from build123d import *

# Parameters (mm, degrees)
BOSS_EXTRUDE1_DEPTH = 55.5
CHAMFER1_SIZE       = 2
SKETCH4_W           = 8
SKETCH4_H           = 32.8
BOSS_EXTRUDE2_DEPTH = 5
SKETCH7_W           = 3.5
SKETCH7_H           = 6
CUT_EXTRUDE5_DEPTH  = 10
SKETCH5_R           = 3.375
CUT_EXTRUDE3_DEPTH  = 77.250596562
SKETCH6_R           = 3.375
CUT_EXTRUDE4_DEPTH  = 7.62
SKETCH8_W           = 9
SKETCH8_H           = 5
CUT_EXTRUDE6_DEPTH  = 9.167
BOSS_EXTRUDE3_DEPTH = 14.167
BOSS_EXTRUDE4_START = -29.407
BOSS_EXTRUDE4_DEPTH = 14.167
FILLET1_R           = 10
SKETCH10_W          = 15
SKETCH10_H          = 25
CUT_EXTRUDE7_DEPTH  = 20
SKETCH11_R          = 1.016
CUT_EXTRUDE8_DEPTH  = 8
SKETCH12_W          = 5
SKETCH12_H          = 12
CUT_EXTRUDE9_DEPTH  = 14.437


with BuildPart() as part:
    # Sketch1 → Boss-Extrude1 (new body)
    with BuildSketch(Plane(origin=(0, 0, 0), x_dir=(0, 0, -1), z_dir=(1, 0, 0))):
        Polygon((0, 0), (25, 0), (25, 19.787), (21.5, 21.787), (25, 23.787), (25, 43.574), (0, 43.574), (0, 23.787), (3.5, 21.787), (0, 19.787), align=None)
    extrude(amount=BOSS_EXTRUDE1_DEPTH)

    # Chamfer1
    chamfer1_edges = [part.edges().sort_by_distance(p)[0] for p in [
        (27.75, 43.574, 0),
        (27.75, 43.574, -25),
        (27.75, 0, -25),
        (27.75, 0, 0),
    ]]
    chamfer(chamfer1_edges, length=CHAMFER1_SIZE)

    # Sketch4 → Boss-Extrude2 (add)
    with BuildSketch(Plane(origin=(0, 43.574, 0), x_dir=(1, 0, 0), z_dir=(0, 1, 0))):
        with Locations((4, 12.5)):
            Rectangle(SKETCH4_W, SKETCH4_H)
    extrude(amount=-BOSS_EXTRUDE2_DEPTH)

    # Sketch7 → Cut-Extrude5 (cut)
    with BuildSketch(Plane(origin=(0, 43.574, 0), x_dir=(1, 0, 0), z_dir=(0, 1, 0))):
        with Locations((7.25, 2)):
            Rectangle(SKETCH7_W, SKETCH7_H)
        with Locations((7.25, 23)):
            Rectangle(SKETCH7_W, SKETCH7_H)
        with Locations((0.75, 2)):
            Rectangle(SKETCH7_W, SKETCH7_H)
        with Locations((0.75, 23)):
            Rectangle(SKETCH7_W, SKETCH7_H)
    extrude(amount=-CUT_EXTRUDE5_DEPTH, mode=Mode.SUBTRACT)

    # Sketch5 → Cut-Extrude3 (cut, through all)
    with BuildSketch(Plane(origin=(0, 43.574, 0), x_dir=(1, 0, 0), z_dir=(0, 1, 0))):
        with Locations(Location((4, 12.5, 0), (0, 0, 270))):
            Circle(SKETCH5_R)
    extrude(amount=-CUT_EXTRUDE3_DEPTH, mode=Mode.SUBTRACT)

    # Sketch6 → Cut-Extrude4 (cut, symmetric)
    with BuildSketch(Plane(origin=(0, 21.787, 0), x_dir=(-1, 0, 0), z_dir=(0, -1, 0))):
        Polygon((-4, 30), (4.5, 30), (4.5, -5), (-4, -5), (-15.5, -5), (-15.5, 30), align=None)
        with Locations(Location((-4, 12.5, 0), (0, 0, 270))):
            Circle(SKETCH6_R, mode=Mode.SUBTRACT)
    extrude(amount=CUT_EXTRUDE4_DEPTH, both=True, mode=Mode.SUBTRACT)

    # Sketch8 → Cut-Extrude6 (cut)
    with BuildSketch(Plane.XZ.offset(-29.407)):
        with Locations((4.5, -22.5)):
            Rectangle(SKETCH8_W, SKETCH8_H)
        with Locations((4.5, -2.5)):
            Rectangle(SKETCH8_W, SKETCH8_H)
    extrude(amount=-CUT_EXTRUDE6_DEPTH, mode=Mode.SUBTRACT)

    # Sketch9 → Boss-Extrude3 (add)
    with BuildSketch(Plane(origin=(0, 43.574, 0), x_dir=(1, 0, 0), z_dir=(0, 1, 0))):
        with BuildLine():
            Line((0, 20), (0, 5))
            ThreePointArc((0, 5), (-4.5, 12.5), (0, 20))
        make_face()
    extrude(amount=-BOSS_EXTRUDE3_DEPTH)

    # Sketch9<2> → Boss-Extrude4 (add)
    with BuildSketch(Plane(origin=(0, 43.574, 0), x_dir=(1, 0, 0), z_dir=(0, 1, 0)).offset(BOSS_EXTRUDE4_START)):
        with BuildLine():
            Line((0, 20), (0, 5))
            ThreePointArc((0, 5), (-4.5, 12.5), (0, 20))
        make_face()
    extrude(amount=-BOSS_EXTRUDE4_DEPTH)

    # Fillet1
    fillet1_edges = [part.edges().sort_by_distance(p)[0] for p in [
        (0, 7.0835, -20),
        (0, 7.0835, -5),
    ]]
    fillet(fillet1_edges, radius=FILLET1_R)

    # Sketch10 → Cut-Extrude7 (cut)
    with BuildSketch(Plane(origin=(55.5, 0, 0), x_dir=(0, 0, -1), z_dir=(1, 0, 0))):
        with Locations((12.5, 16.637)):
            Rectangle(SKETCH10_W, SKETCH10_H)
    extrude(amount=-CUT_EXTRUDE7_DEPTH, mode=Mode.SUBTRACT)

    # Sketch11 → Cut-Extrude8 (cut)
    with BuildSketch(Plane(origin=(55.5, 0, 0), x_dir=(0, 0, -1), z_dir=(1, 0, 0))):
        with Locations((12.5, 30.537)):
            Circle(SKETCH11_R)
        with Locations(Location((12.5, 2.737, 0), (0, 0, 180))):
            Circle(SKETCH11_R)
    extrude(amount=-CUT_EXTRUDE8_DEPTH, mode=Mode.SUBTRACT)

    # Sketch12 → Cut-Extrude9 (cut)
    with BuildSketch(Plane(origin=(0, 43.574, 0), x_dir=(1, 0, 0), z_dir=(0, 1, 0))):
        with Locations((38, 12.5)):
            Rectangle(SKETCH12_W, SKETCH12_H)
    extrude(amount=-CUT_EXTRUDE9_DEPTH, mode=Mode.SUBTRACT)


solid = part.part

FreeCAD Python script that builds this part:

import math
import FreeCAD as App
import Part
import Sketcher
from FreeCAD import Vector
Q = App.Units.Quantity


def edges_at(feature, points):
    """Names of the edges that pass closest to the given points."""
    edges = feature.Shape.Edges
    near = lambda p: min(range(len(edges)), key=lambda i: edges[i].distToShape(Part.Vertex(*p))[0])
    return sorted({f"Edge{near(p) + 1}" for p in points})


def add_polygon(sketch, points):
    """Adds a closed chain of lines whose ends are joined by coincident constraints."""
    first, n = sketch.GeometryCount, len(points)
    for a, b in zip(points, points[1:] + points[:1]):
        sketch.addGeometry(Part.LineSegment(App.Vector(*a, 0), App.Vector(*b, 0)), False)
    for i in range(n):
        sketch.addConstraint(Sketcher.Constraint("Coincident", first + i, 2, first + (i + 1) % n, 1))

doc = App.newDocument("Part")
body = doc.addObject("PartDesign::Body", "Body")

# Sketch on YZ plane
sketch1 = doc.addObject("Sketcher::SketchObject", "Sketch")
body.addObject(sketch1)
sketch1.AttachmentSupport = (doc.YZ_Plane, [""])
sketch1.MapMode = "FlatFace"
add_polygon(sketch1, [(0, 0), (0, -25), (19.787, -25), (21.787, -21.5), (23.787, -25), (43.574, -25), (43.574, 0), (23.787, 0), (21.787, -3.5), (19.787, 0)])  # lines 0-9
sketch1.addConstraint([
    Sketcher.Constraint("Vertical", 0),
    Sketcher.Constraint("Horizontal", 1),
    Sketcher.Constraint("Horizontal", 4),
    Sketcher.Constraint("Vertical", 5),
    Sketcher.Constraint("Horizontal", 6),
    Sketcher.Constraint("Horizontal", 9),
    Sketcher.Constraint("Coincident", 9, 2, -1, 1),
    Sketcher.Constraint("PointOnObject", 5, 2, -1),
    Sketcher.Constraint("Parallel", 2, 7),
    Sketcher.Constraint("Parallel", 3, 8),
    Sketcher.Constraint("Horizontal", 1, 2, 3, 2),
    Sketcher.Constraint("Vertical", 3, 2, 6, 2),
    Sketcher.Constraint("Vertical", 2, 2, 7, 2),
    Sketcher.Constraint("Vertical", 1, 2, 8, 2),
    Sketcher.Constraint("Equal", 1, 4),
    Sketcher.Constraint("DistanceY", 0, 2, 0, 1, Q("25 mm")),
    Sketcher.Constraint("DistanceX", 1, 2, 2, 2, Q("2 mm")),
    Sketcher.Constraint("DistanceY", 2, 2, 7, 2, Q("18 mm")),
    Sketcher.Constraint("DistanceX", 1, 1, 1, 2, Q("19.787 mm")),
])
pad1 = doc.addObject("PartDesign::Pad", "Pad")
body.addObject(pad1)
pad1.Profile = sketch1
pad1.Length = 55.5
doc.recompute()

chamfer = doc.addObject("PartDesign::Chamfer", "Chamfer")
body.addObject(chamfer)
chamfer.Base = (pad1, edges_at(pad1, [
    (27.75, 43.574, 0),
    (27.75, 43.574, -25),
    (27.75, 0, -25),
    (27.75, 0, 0),
]))
chamfer.Size = 2

# Sketch on XZ plane
sketch2 = doc.addObject("Sketcher::SketchObject", "Sketch001")
body.addObject(sketch2)
sketch2.AttachmentSupport = (doc.XZ_Plane, [""])
sketch2.MapMode = "FlatFace"
sketch2.AttachmentOffset = App.Placement(Vector(0, 0, -43.574), App.Rotation())
add_polygon(sketch2, [(0, -28.9), (0, 3.9), (8, 3.9), (8, -28.9)])  # lines 0-3
sketch2.addConstraint([
    Sketcher.Constraint("Vertical", 0),
    Sketcher.Constraint("Horizontal", 1),
    Sketcher.Constraint("Vertical", 2),
    Sketcher.Constraint("Horizontal", 3),
    Sketcher.Constraint("PointOnObject", 0, 2, -2),
    Sketcher.Constraint("DistanceX", 1, 1, 1, 2, Q("8 mm")),
    Sketcher.Constraint("DistanceY", 0, 1, 0, 2, Q("32.8 mm")),
    Sketcher.Constraint("DistanceY", -1, 1, 0, 2, Q("3.9 mm")),
])
pad2 = doc.addObject("PartDesign::Pad", "Pad001")
body.addObject(pad2)
pad2.Profile = sketch2
pad2.Length = 5

# Sketch on XZ plane
sketch3 = doc.addObject("Sketcher::SketchObject", "Sketch002")
body.addObject(sketch3)
sketch3.AttachmentSupport = (doc.XZ_Plane, [""])
sketch3.MapMode = "FlatFace"
sketch3.AttachmentOffset = App.Placement(Vector(0, 0, -43.574), App.Rotation())
add_polygon(sketch3, [(5.5, -5), (5.5, 1), (9, 1), (9, -5)])  # lines 0-3
add_polygon(sketch3, [(5.5, -26), (5.5, -20), (9, -20), (9, -26)])  # lines 4-7
add_polygon(sketch3, [(-1, -5), (-1, 1), (2.5, 1), (2.5, -5)])  # lines 8-11
add_polygon(sketch3, [(-1, -26), (-1, -20), (2.5, -20), (2.5, -26)])  # lines 12-15
sketch3.addConstraint([
    Sketcher.Constraint("Vertical", 0),
    Sketcher.Constraint("Horizontal", 1),
    Sketcher.Constraint("Vertical", 2),
    Sketcher.Constraint("Horizontal", 3),
    Sketcher.Constraint("Vertical", 4),
    Sketcher.Constraint("Horizontal", 5),
    Sketcher.Constraint("Vertical", 6),
    Sketcher.Constraint("Horizontal", 7),
    Sketcher.Constraint("Vertical", 8),
    Sketcher.Constraint("Horizontal", 9),
    Sketcher.Constraint("Vertical", 10),
    Sketcher.Constraint("Horizontal", 11),
    Sketcher.Constraint("Vertical", 12),
    Sketcher.Constraint("Horizontal", 13),
    Sketcher.Constraint("Vertical", 14),
    Sketcher.Constraint("Horizontal", 15),
    Sketcher.Constraint("Horizontal", 1, 2, 8, 2),
    Sketcher.Constraint("Horizontal", 3, 2, 10, 2),
    Sketcher.Constraint("Horizontal", 5, 2, 12, 2),
    Sketcher.Constraint("Horizontal", 7, 2, 14, 2),
    Sketcher.Constraint("Vertical", 3, 2, 4, 2),
    Sketcher.Constraint("Vertical", 2, 2, 5, 2),
    Sketcher.Constraint("Vertical", 11, 2, 12, 2),
    Sketcher.Constraint("Vertical", 10, 2, 13, 2),
    Sketcher.Constraint("Equal", 7, 9),
    Sketcher.Constraint("Equal", 2, 4),
    Sketcher.Constraint("DistanceY", 0, 1, 0, 2, Q("6 mm")),
    Sketcher.Constraint("DistanceX", 1, 1, 1, 2, Q("3.5 mm")),
    Sketcher.Constraint("DistanceY", -1, 1, 0, 2, Q("1 mm")),
    Sketcher.Constraint("DistanceX", -1, 1, 1, 2, Q("9 mm")),
    Sketcher.Constraint("DistanceY", 4, 2, -1, 1, Q("20 mm")),
    Sketcher.Constraint("DistanceX", 8, 2, -1, 1, Q("1 mm")),
])
pocket1 = doc.addObject("PartDesign::Pocket", "Pocket")
body.addObject(pocket1)
pocket1.Profile = sketch3
pocket1.Length = 10
pocket1.Reversed = True

# Sketch on XZ plane
sketch4 = doc.addObject("Sketcher::SketchObject", "Sketch003")
body.addObject(sketch4)
sketch4.AttachmentSupport = (doc.XZ_Plane, [""])
sketch4.MapMode = "FlatFace"
sketch4.AttachmentOffset = App.Placement(Vector(0, 0, -43.574), App.Rotation())
sketch4.addGeometry(Part.Circle(Vector(4, -12.5, 0), Vector(0, 0, 1), 3.375), False)
sketch4.addConstraint([
    Sketcher.Constraint("Diameter", 0, Q("6.75 mm")),
    Sketcher.Constraint("DistanceX", -1, 1, 0, 3, Q("4 mm")),
    Sketcher.Constraint("DistanceY", 0, 3, -1, 1, Q("12.5 mm")),
])
pocket2 = doc.addObject("PartDesign::Pocket", "Pocket001")
body.addObject(pocket2)
pocket2.Profile = sketch4
pocket2.Type = "ThroughAll"
pocket2.Reversed = True

# Sketch on XZ plane
sketch5 = doc.addObject("Sketcher::SketchObject", "Sketch004")
body.addObject(sketch5)
sketch5.AttachmentSupport = (doc.XZ_Plane, [""])
sketch5.MapMode = "FlatFace"
sketch5.AttachmentOffset = App.Placement(Vector(0, 0, -21.787), App.Rotation())
add_polygon(sketch5, [(-4.5, -30), (15.5, -30), (15.5, 5), (-4.5, 5)])  # lines 0-3
sketch5.addGeometry(Part.Circle(Vector(4, -12.5, 0), Vector(0, 0, 1), 3.375), False)  # 4
sketch5.addConstraint([
    Sketcher.Constraint("Horizontal", 0),
    Sketcher.Constraint("Vertical", 1),
    Sketcher.Constraint("Horizontal", 2),
    Sketcher.Constraint("Vertical", 3),
    Sketcher.Constraint("Diameter", 4, Q("6.75 mm")),
    Sketcher.Constraint("DistanceX", 0, 1, 0, 2, Q("20 mm")),
    Sketcher.Constraint("DistanceY", 1, 1, 1, 2, Q("35 mm")),
    Sketcher.Constraint("DistanceX", -1, 1, 4, 3, Q("4 mm")),
    Sketcher.Constraint("DistanceY", 0, 2, -1, 1, Q("30 mm")),
    Sketcher.Constraint("DistanceY", 4, 3, -1, 1, Q("12.5 mm")),
    Sketcher.Constraint("DistanceX", -1, 1, 0, 2, Q("15.5 mm")),
])
pocket3 = doc.addObject("PartDesign::Pocket", "Pocket002")
body.addObject(pocket3)
pocket3.Profile = sketch5
pocket3.Length = 15.24
pocket3.Midplane = True

# Sketch on XZ plane
sketch6 = doc.addObject("Sketcher::SketchObject", "Sketch005")
body.addObject(sketch6)
sketch6.AttachmentSupport = (doc.XZ_Plane, [""])
sketch6.MapMode = "FlatFace"
sketch6.AttachmentOffset = App.Placement(Vector(0, 0, -29.407), App.Rotation())
add_polygon(sketch6, [(0, -20), (0, -25), (9, -25), (9, -20)])  # lines 0-3
add_polygon(sketch6, [(0, 0), (0, -5), (9, -5), (9, 0)])  # lines 4-7
sketch6.addConstraint([
    Sketcher.Constraint("Vertical", 0),
    Sketcher.Constraint("Horizontal", 1),
    Sketcher.Constraint("Vertical", 2),
    Sketcher.Constraint("Horizontal", 3),
    Sketcher.Constraint("Vertical", 4),
    Sketcher.Constraint("Horizontal", 5),
    Sketcher.Constraint("Vertical", 6),
    Sketcher.Constraint("Horizontal", 7),
    Sketcher.Constraint("Coincident", 7, 2, -1, 1),
    Sketcher.Constraint("PointOnObject", 0, 2, -2),
    Sketcher.Constraint("Vertical", 2, 2, 5, 2),
    Sketcher.Constraint("Equal", 2, 4),
    Sketcher.Constraint("DistanceX", 1, 1, 1, 2, Q("9 mm")),
    Sketcher.Constraint("DistanceY", 0, 2, 0, 1, Q("5 mm")),
    Sketcher.Constraint("DistanceY", 0, 2, -1, 1, Q("25 mm")),
])
pocket4 = doc.addObject("PartDesign::Pocket", "Pocket003")
body.addObject(pocket4)
pocket4.Profile = sketch6
pocket4.Length = 9.167

# Sketch on XZ plane
sketch7 = doc.addObject("Sketcher::SketchObject", "Sketch006")
body.addObject(sketch7)
sketch7.AttachmentSupport = (doc.XZ_Plane, [""])
sketch7.MapMode = "FlatFace"
sketch7.AttachmentOffset = App.Placement(Vector(0, 0, -43.574), App.Rotation())
sketch7.addGeometry([
    Part.LineSegment(Vector(0, -5, 0), Vector(0, -20, 0)),
    Part.ArcOfCircle(Part.Circle(Vector(4, -12.5, 0), Vector(0, 0, 1), 8.5), math.radians(118.072487), math.radians(241.927513)),
], False)
sketch7.addConstraint([
    Sketcher.Constraint("Coincident", 0, 1, 1, 1),
    Sketcher.Constraint("Coincident", 1, 2, 0, 2),
    Sketcher.Constraint("Vertical", 0),
    Sketcher.Constraint("PointOnObject", 0, 1, -2),
    Sketcher.Constraint("Radius", 1, Q("8.5 mm")),
    Sketcher.Constraint("DistanceY", 0, 2, 0, 1, Q("15 mm")),
    Sketcher.Constraint("DistanceY", 0, 1, -1, 1, Q("5 mm")),
])
pad3 = doc.addObject("PartDesign::Pad", "Pad002")
body.addObject(pad3)
pad3.Profile = sketch7
pad3.Length = 14.167

# Sketch on XZ plane
sketch8 = doc.addObject("Sketcher::SketchObject", "Sketch007")
body.addObject(sketch8)
sketch8.AttachmentSupport = (doc.XZ_Plane, [""])
sketch8.MapMode = "FlatFace"
sketch8.AttachmentOffset = App.Placement(Vector(0, 0, -14.167), App.Rotation())
sketch8.addGeometry([
    Part.LineSegment(Vector(0, -5, 0), Vector(0, -20, 0)),
    Part.ArcOfCircle(Part.Circle(Vector(4, -12.5, 0), Vector(0, 0, 1), 8.5), math.radians(118.072487), math.radians(241.927513)),
], False)
sketch8.addConstraint([
    Sketcher.Constraint("Coincident", 0, 1, 1, 1),
    Sketcher.Constraint("Coincident", 1, 2, 0, 2),
    Sketcher.Constraint("Vertical", 0),
    Sketcher.Constraint("PointOnObject", 0, 1, -2),
    Sketcher.Constraint("Radius", 1, Q("8.5 mm")),
    Sketcher.Constraint("DistanceY", 0, 2, 0, 1, Q("15 mm")),
    Sketcher.Constraint("DistanceY", 0, 1, -1, 1, Q("5 mm")),
])
pad4 = doc.addObject("PartDesign::Pad", "Pad003")
body.addObject(pad4)
pad4.Profile = sketch8
pad4.Length = 14.167
doc.recompute()

fillet = doc.addObject("PartDesign::Fillet", "Fillet")
body.addObject(fillet)
fillet.Base = (pad4, edges_at(pad4, [(0, 7.083, -20), (0, 7.083, -5)]))
fillet.Radius = 10

# Sketch on YZ plane
sketch9 = doc.addObject("Sketcher::SketchObject", "Sketch008")
body.addObject(sketch9)
sketch9.AttachmentSupport = (doc.YZ_Plane, [""])
sketch9.MapMode = "FlatFace"
sketch9.AttachmentOffset = App.Placement(Vector(0, 0, 55.5), App.Rotation())
add_polygon(sketch9, [(29.137, -5), (4.137, -5), (4.137, -20), (29.137, -20)])  # lines 0-3
sketch9.addConstraint([
    Sketcher.Constraint("Horizontal", 0),
    Sketcher.Constraint("Vertical", 1),
    Sketcher.Constraint("Horizontal", 2),
    Sketcher.Constraint("Vertical", 3),
    Sketcher.Constraint("DistanceX", 0, 2, 0, 1, Q("25 mm")),
    Sketcher.Constraint("DistanceY", 1, 2, 1, 1, Q("15 mm")),
    Sketcher.Constraint("DistanceY", 0, 2, -1, 1, Q("5 mm")),
    Sketcher.Constraint("DistanceX", -1, 1, 0, 2, Q("4.137 mm")),
])
pocket5 = doc.addObject("PartDesign::Pocket", "Pocket004")
body.addObject(pocket5)
pocket5.Profile = sketch9
pocket5.Length = 20

# Sketch on YZ plane
sketch10 = doc.addObject("Sketcher::SketchObject", "Sketch009")
body.addObject(sketch10)
sketch10.AttachmentSupport = (doc.YZ_Plane, [""])
sketch10.MapMode = "FlatFace"
sketch10.AttachmentOffset = App.Placement(Vector(0, 0, 55.5), App.Rotation())
sketch10.addGeometry([
    Part.Circle(Vector(30.537, -12.5, 0), Vector(0, 0, 1), 1.016),
    Part.Circle(Vector(2.737, -12.5, 0), Vector(0, 0, 1), 1.016),
], False)
sketch10.addConstraint([
    Sketcher.Constraint("Equal", 0, 1),
    Sketcher.Constraint("Horizontal", 0, 3, 1, 3),
    Sketcher.Constraint("Diameter", 0, Q("2.032 mm")),
    Sketcher.Constraint("DistanceY", 0, 3, -1, 1, Q("12.5 mm")),
    Sketcher.Constraint("DistanceX", 1, 3, 0, 3, Q("27.8 mm")),
    Sketcher.Constraint("DistanceX", -1, 1, 0, 3, Q("30.537 mm")),
])
pocket6 = doc.addObject("PartDesign::Pocket", "Pocket005")
body.addObject(pocket6)
pocket6.Profile = sketch10
pocket6.Length = 8

# Sketch on XZ plane
sketch11 = doc.addObject("Sketcher::SketchObject", "Sketch010")
body.addObject(sketch11)
sketch11.AttachmentSupport = (doc.XZ_Plane, [""])
sketch11.MapMode = "FlatFace"
sketch11.AttachmentOffset = App.Placement(Vector(0, 0, -43.574), App.Rotation())
add_polygon(sketch11, [(35.5, -18.5), (35.5, -6.5), (40.5, -6.5), (40.5, -18.5)])  # lines 0-3
sketch11.addConstraint([
    Sketcher.Constraint("Vertical", 0),
    Sketcher.Constraint("Horizontal", 1),
    Sketcher.Constraint("Vertical", 2),
    Sketcher.Constraint("Horizontal", 3),
    Sketcher.Constraint("DistanceX", 1, 1, 1, 2, Q("5 mm")),
    Sketcher.Constraint("DistanceY", 0, 1, 0, 2, Q("12 mm")),
    Sketcher.Constraint("DistanceX", -1, 1, 0, 2, Q("35.5 mm")),
    Sketcher.Constraint("DistanceY", 0, 2, -1, 1, Q("6.5 mm")),
])
pocket7 = doc.addObject("PartDesign::Pocket", "Pocket006")
body.addObject(pocket7)
pocket7.Profile = sketch11
pocket7.Length = 14.437
pocket7.Reversed = True

doc.recompute()
